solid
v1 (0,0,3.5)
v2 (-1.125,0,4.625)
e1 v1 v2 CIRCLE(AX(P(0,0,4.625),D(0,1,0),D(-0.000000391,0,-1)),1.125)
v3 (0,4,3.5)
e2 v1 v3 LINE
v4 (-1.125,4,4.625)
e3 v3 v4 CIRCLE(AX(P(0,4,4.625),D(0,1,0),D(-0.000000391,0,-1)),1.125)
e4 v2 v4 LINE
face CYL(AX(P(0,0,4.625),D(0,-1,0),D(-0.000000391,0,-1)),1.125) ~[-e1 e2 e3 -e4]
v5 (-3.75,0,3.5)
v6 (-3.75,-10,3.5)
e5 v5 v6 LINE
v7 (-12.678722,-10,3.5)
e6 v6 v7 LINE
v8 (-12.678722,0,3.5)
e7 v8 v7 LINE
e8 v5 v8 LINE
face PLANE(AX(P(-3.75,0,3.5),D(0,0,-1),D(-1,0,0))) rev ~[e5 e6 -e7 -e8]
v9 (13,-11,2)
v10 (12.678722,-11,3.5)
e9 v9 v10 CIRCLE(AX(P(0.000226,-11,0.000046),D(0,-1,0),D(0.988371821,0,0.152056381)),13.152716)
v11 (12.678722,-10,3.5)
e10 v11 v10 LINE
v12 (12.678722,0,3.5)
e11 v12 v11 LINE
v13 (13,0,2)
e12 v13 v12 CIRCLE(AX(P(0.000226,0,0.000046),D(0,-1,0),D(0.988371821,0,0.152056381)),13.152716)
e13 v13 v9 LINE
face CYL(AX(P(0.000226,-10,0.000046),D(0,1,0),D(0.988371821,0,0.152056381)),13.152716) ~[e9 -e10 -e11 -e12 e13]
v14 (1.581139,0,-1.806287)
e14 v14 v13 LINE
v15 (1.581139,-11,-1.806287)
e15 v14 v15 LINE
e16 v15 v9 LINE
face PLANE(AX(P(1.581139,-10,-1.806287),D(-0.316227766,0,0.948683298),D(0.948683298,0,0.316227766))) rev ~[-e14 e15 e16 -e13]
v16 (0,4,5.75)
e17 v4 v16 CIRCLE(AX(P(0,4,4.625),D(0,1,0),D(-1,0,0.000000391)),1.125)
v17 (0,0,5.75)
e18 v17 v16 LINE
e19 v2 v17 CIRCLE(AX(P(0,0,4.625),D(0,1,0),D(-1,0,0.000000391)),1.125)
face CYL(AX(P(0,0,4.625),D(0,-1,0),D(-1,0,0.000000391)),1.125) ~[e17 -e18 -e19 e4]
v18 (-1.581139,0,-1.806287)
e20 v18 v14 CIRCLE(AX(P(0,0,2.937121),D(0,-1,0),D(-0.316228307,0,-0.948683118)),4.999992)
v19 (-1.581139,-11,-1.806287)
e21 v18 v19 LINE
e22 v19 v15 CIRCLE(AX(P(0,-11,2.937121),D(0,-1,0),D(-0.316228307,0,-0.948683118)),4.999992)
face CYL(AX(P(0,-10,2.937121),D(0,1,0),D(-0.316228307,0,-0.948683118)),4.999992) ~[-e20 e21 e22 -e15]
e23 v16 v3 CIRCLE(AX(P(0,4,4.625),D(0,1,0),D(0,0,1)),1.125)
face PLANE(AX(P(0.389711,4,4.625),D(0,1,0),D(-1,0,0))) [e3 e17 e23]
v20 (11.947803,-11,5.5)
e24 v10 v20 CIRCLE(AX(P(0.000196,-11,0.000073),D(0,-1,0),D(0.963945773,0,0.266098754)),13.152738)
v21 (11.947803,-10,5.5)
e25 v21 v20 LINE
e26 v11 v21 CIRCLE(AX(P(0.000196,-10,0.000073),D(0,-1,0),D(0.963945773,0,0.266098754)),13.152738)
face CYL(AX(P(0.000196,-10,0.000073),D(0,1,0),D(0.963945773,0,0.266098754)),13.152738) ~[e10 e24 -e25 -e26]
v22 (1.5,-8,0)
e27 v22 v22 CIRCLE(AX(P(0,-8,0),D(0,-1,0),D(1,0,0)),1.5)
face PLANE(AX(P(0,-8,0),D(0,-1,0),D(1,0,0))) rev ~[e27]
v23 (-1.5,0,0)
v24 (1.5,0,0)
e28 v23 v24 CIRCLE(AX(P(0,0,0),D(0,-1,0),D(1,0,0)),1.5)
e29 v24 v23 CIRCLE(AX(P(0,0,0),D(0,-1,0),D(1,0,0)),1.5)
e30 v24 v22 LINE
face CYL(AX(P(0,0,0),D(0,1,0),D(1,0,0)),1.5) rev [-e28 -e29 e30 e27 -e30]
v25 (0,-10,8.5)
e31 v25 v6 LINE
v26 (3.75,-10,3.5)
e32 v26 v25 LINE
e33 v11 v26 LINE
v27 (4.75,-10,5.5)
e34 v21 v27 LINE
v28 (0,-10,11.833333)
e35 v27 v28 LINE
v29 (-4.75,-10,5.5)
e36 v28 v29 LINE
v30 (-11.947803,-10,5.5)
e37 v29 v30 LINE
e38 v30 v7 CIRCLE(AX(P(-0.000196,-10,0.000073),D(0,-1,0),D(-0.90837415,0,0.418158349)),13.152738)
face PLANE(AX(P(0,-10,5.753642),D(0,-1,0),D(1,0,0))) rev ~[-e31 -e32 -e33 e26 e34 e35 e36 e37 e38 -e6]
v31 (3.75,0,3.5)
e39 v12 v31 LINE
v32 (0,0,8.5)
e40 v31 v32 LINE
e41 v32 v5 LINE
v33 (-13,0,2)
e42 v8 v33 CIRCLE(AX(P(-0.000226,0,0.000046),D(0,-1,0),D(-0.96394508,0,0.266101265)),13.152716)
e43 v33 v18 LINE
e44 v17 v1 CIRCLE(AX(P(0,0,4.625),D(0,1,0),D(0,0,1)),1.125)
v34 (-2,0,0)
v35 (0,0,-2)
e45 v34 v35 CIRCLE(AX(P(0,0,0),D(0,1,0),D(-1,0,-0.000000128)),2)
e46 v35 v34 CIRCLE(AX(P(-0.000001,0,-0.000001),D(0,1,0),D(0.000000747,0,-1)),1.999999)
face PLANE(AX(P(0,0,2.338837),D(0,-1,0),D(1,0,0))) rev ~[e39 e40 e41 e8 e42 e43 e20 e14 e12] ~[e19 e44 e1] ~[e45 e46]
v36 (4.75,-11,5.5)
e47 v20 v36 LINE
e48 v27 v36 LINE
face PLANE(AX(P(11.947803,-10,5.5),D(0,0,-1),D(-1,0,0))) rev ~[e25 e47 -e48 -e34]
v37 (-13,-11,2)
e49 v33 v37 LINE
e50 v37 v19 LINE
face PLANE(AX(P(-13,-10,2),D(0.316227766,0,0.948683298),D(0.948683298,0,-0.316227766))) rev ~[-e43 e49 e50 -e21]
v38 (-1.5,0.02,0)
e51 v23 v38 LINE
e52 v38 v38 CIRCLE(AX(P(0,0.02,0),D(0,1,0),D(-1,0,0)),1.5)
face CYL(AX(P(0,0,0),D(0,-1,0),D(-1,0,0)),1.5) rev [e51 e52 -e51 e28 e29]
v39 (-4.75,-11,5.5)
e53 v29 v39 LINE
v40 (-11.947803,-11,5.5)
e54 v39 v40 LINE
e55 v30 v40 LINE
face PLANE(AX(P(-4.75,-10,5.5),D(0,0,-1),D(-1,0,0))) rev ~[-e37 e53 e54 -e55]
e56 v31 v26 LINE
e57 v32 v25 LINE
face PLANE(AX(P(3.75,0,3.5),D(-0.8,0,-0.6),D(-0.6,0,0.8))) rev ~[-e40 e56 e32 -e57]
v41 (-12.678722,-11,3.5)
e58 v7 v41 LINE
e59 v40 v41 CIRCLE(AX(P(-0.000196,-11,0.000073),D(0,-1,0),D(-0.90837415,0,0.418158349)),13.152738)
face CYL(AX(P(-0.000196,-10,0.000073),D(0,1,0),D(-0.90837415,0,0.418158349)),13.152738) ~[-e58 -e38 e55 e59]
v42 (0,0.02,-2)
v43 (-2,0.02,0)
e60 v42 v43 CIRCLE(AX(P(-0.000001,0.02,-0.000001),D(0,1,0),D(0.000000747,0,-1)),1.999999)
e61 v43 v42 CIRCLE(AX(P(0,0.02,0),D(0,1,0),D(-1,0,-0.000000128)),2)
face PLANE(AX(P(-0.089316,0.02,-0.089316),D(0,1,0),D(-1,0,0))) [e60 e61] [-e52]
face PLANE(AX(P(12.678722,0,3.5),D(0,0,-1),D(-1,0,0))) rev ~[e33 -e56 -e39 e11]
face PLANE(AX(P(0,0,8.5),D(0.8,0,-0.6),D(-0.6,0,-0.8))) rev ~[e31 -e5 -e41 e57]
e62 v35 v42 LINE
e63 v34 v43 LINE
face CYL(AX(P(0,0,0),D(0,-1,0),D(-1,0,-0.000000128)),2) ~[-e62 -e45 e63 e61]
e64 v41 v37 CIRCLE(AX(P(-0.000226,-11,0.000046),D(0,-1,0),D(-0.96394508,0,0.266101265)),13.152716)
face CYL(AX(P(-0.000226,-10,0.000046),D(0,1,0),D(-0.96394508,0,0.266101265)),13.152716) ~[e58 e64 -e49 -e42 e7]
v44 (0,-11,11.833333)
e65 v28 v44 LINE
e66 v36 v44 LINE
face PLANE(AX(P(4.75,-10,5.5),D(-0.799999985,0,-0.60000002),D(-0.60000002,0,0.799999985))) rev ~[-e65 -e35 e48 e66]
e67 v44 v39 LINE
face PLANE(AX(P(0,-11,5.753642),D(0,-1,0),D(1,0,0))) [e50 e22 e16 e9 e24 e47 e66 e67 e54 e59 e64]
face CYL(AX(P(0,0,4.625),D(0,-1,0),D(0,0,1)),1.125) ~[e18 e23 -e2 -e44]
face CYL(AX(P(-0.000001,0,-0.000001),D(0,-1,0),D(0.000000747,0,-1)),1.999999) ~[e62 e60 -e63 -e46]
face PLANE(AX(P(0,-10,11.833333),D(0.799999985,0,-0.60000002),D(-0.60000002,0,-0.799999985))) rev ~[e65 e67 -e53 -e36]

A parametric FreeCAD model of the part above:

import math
import FreeCAD as App
import Part
import Sketcher
Q = App.Units.Quantity

doc = App.newDocument("Part")
body = doc.addObject("PartDesign::Body", "Body")

# Sketch on XZ plane
sketch1 = doc.addObject("Sketcher::SketchObject", "Sketch")
body.addObject(sketch1)
sketch1.AttachmentSupport = (doc.XZ_Plane, [""])
sketch1.MapMode = "FlatFace"
sketch1.addGeometry([
    Part.LineSegment(App.Vector(-3.75, 3.5, 0), App.Vector(-12.678722, 3.5, 0)),  # 0
    Part.ArcOfCircle(Part.Circle(App.Vector(-0.000226, 0.000046, 0), App.Vector(0, 0, 1), 13.152716), math.radians(164.5676), math.radians(171.253884)),  # 1
    Part.LineSegment(App.Vector(-13, 2, 0), App.Vector(-1.581139, -1.806287, 0)),  # 2
    Part.ArcOfCircle(Part.Circle(App.Vector(0, 2.937121, 0), App.Vector(0, 0, 1), 4.999992), math.radians(-108.434981), math.radians(-71.565019)),  # 3
    Part.LineSegment(App.Vector(1.581139, -1.806287, 0), App.Vector(13, 2, 0)),  # 4
    Part.ArcOfCircle(Part.Circle(App.Vector(0.000226, 0.000046, 0), App.Vector(0, 0, 1), 13.152716), math.radians(8.746116), math.radians(15.4324)),  # 5
    Part.LineSegment(App.Vector(12.678722, 3.5, 0), App.Vector(3.75, 3.5, 0)),  # 6
    Part.LineSegment(App.Vector(3.75, 3.5, 0), App.Vector(0, 8.5, 0)),  # 7
    Part.LineSegment(App.Vector(0, 8.5, 0), App.Vector(-3.75, 3.5, 0)),  # 8
    Part.Circle(App.Vector(0, 0, 0), App.Vector(0, 0, 1), 1.5),  # 9
], False)
sketch1.addConstraint([
    Sketcher.Constraint("Coincident", 0, 2, 1, 1),
    Sketcher.Constraint("Coincident", 1, 2, 2, 1),
    Sketcher.Constraint("Tangent", 2, 2, 3, 1),
    Sketcher.Constraint("Tangent", 3, 2, 4, 1),
    Sketcher.Constraint("Coincident", 4, 2, 5, 1),
    Sketcher.Constraint("Coincident", 5, 2, 6, 1),
    Sketcher.Constraint("Coincident", 6, 2, 7, 1),
    Sketcher.Constraint("Coincident", 7, 2, 8, 1),
    Sketcher.Constraint("Coincident", 8, 2, 0, 1),
    Sketcher.Constraint("Horizontal", 0),
    Sketcher.Constraint("Horizontal", 6),
    Sketcher.Constraint("Coincident", 9, 3, -1, 1),
    Sketcher.Constraint("Equal", 1, 5),
    Sketcher.Constraint("Symmetric", 1, 3, 5, 3, -2),
    Sketcher.Constraint("Symmetric", 2, 2, 3, 2, -2),
    Sketcher.Constraint("Symmetric", 6, 2, 8, 2, -2),
    Sketcher.Constraint("PointOnObject", 7, 2, -2),
    Sketcher.Constraint("Diameter", 9, Q("3 mm")),
    Sketcher.Constraint("DistanceX", 1, 2, -1, 1, Q("13 mm")),
    Sketcher.Constraint("DistanceY", -1, 1, 1, 2, Q("2 mm")),
    Sketcher.Constraint("DistanceY", 6, 2, 7, 2, Q("5 mm")),
    Sketcher.Constraint("DistanceY", -1, 1, 0, 2, Q("3.5 mm")),
    Sketcher.Constraint("Distance", 7, Q("6.25 mm")),
    Sketcher.Constraint("Radius", 3, Q("4.999992 mm")),
    Sketcher.Constraint("Radius", 1, Q("13.152716 mm")),
    Sketcher.Constraint("DistanceX", 0, 2, 0, 1, Q("8.928722 mm")),
    Sketcher.Constraint("DistanceY", -1, 1, 3, 3, Q("2.937121 mm")),
])
pad1 = doc.addObject("PartDesign::Pad", "Pad")
body.addObject(pad1)
pad1.Profile = sketch1
pad1.Length = 10

# Sketch on XZ plane
sketch2 = doc.addObject("Sketcher::SketchObject", "Sketch001")
body.addObject(sketch2)
sketch2.AttachmentSupport = (doc.XZ_Plane, [""])
sketch2.MapMode = "FlatFace"
sketch2.addGeometry([
    Part.ArcOfCircle(Part.Circle(App.Vector(0, 4.6, 0), App.Vector(0, 0, 1), 1.1), math.radians(-90), math.radians(90)),
    Part.ArcOfCircle(Part.Circle(App.Vector(0, 4.6, 0), App.Vector(0, 0, 1), 1.1), math.radians(-180), math.radians(-90)),
    Part.ArcOfCircle(Part.Circle(App.Vector(0, 4.6, 0), App.Vector(0, 0, 1), 1.1), math.radians(90), math.radians(180)),
], False)
sketch2.addConstraint([
    Sketcher.Constraint("Tangent", 0, 1, 1, 2),
    Sketcher.Constraint("Tangent", 1, 1, 2, 2),
    Sketcher.Constraint("Tangent", 2, 1, 0, 2),
    Sketcher.Constraint("PointOnObject", 0, 3, -2),
    Sketcher.Constraint("PointOnObject", 0, 1, -2),
    Sketcher.Constraint("PointOnObject", 2, 1, -2),
    Sketcher.Constraint("Horizontal", 2, 3, 1, 1),
    Sketcher.Constraint("Radius", 0, Q("1.125 mm")),
    Sketcher.Constraint("DistanceY", -1, 1, 0, 1, Q("3.5 mm")),
])
pad2 = doc.addObject("PartDesign::Pad", "Pad001")
body.addObject(pad2)
pad2.Profile = sketch2
pad2.Length = 4
pad2.Reversed = True

# Sketch on XZ plane
sketch3 = doc.addObject("Sketcher::SketchObject", "Sketch002")
body.addObject(sketch3)
sketch3.AttachmentSupport = (doc.XZ_Plane, [""])
sketch3.MapMode = "FlatFace"
sketch3.AttachmentOffset = App.Placement(App.Vector(0, 0, 10), App.Rotation())
sketch3.addGeometry(Part.Circle(App.Vector(0, 0, 0), App.Vector(0, 0, 1), 1.5), False)
sketch3.addConstraint([
    Sketcher.Constraint("Coincident", 0, 3, -1, 1),
    Sketcher.Constraint("Diameter", 0, Q("3 mm")),
])
pad3 = doc.addObject("PartDesign::Pad", "Pad002")
body.addObject(pad3)
pad3.Profile = sketch3
pad3.Length = 2
pad3.Reversed = True

# Sketch on XZ plane
sketch4 = doc.addObject("Sketcher::SketchObject", "Sketch003")
body.addObject(sketch4)
sketch4.AttachmentSupport = (doc.XZ_Plane, [""])
sketch4.MapMode = "FlatFace"
sketch4.addGeometry([
    Part.ArcOfCircle(Part.Circle(App.Vector(0, 0, 0), App.Vector(0, 0, 1), 2), math.radians(180), math.radians(270)),
    Part.ArcOfCircle(Part.Circle(App.Vector(0, 0, 0), App.Vector(0, 0, 1), 2), math.radians(-90), math.radians(180)),
    Part.Circle(App.Vector(0, 0, 0), App.Vector(0, 0, 1), 1.5),
], False)
sketch4.addConstraint([
    Sketcher.Constraint("Tangent", 0, 1, 1, 2),
    Sketcher.Constraint("Coincident", 1, 1, 0, 2),
    Sketcher.Constraint("Coincident", 0, 3, -1, 1),
    Sketcher.Constraint("Coincident", 2, 3, -1, 1),
    Sketcher.Constraint("PointOnObject", 0, 1, -1),
    Sketcher.Constraint("PointOnObject", 1, 1, -2),
    Sketcher.Constraint("Diameter", 2, Q("3 mm")),
    Sketcher.Constraint("Radius", 0, Q("1.999999 mm")),
])
pad4 = doc.addObject("PartDesign::Pad", "Pad003")
body.addObject(pad4)
pad4.Profile = sketch4
pad4.Length = 0.02
pad4.Reversed = True

# Sketch on XZ plane
sketch5 = doc.addObject("Sketcher::SketchObject", "Sketch004")
body.addObject(sketch5)
sketch5.AttachmentSupport = (doc.XZ_Plane, [""])
sketch5.MapMode = "FlatFace"
sketch5.AttachmentOffset = App.Placement(App.Vector(0, 0, 10), App.Rotation())
sketch5.addGeometry([
    Part.LineSegment(App.Vector(0, 11.833333, 0), App.Vector(-4.75, 5.5, 0)),  # 0
    Part.LineSegment(App.Vector(-4.75, 5.5, 0), App.Vector(-11.947803, 5.5, 0)),  # 1
    Part.ArcOfCircle(Part.Circle(App.Vector(-0.000196, 0.000073, 0), App.Vector(0, 0, 1), 13.152738), math.radians(155.281629), math.radians(164.567749)),  # 2
    Part.ArcOfCircle(Part.Circle(App.Vector(-0.000226, 0.000046, 0), App.Vector(0, 0, 1), 13.152716), math.radians(164.5676), math.radians(171.253884)),  # 3
    Part.LineSegment(App.Vector(-13, 2, 0), App.Vector(-1.581139, -1.806287, 0)),  # 4
    Part.ArcOfCircle(Part.Circle(App.Vector(0, 2.937121, 0), App.Vector(0, 0, 1), 4.999992), math.radians(-108.434981), math.radians(-71.565019)),  # 5
    Part.LineSegment(App.Vector(1.581139, -1.806287, 0), App.Vector(13, 2, 0)),  # 6
    Part.ArcOfCircle(Part.Circle(App.Vector(0.000226, 0.000046, 0), App.Vector(0, 0, 1), 13.152716), math.radians(8.746116), math.radians(15.4324)),  # 7
    Part.ArcOfCircle(Part.Circle(App.Vector(0.000196, 0.000073, 0), App.Vector(0, 0, 1), 13.152738), math.radians(15.432251), math.radians(24.718371)),  # 8
    Part.LineSegment(App.Vector(11.947803, 5.5, 0), App.Vector(4.75, 5.5, 0)),  # 9
    Part.LineSegment(App.Vector(4.75, 5.5, 0), App.Vector(0, 11.833333, 0)),  # 10
], False)
sketch5.addConstraint([
    Sketcher.Constraint("Coincident", 0, 2, 1, 1),
    Sketcher.Constraint("Coincident", 1, 2, 2, 1),
    Sketcher.Constraint("Coincident", 2, 2, 3, 1),
    Sketcher.Constraint("Coincident", 3, 2, 4, 1),
    Sketcher.Constraint("Tangent", 4, 2, 5, 1),
    Sketcher.Constraint("Tangent", 5, 2, 6, 1),
    Sketcher.Constraint("Coincident", 6, 2, 7, 1),
    Sketcher.Constraint("Coincident", 7, 2, 8, 1),
    Sketcher.Constraint("Coincident", 8, 2, 9, 1),
    Sketcher.Constraint("Coincident", 9, 2, 10, 1),
    Sketcher.Constraint("Coincident", 10, 2, 0, 1),
    Sketcher.Constraint("Horizontal", 1),
    Sketcher.Constraint("Horizontal", 9),
    Sketcher.Constraint("Equal", 3, 7),
    Sketcher.Constraint("Equal", 2, 8),
    Sketcher.Constraint("Symmetric", 3, 3, 7, 3, -2),
    Sketcher.Constraint("Symmetric", 4, 2, 5, 2, -2),
    Sketcher.Constraint("Symmetric", 1, 2, 8, 2, -2),
    Sketcher.Constraint("PointOnObject", 10, 2, -2),
    Sketcher.Constraint("Horizontal", 2, 2, 7, 2),
    Sketcher.Constraint("Equal", 1, 9),
    Sketcher.Constraint("DistanceX", 3, 2, -1, 1, Q("13 mm")),
    Sketcher.Constraint("DistanceY", -1, 1, 3, 2, Q("2 mm")),
    Sketcher.Constraint("DistanceY", 2, 2, 1, 2, Q("2 mm")),
    Sketcher.Constraint("DistanceY", -1, 1, 0, 2, Q("5.5 mm")),
    Sketcher.Constraint("DistanceX", 0, 2, -1, 1, Q("4.75 mm")),
    Sketcher.Constraint("Radius", 5, Q("4.999992 mm")),
    Sketcher.Constraint("Radius", 2, Q("13.152738 mm")),
    Sketcher.Constraint("Radius", 3, Q("13.152716 mm")),
    Sketcher.Constraint("DistanceX", 1, 2, 8, 3, Q("11.947999 mm")),
    Sketcher.Constraint("DistanceX", 1, 2, 1, 1, Q("7.197803 mm")),
    Sketcher.Constraint("DistanceY", -1, 1, 5, 3, Q("2.937121 mm")),
    Sketcher.Constraint("DistanceY", 2, 3, 10, 2, Q("11.83326 mm")),
])
pad5 = doc.addObject("PartDesign::Pad", "Pad004")
body.addObject(pad5)
pad5.Profile = sketch5
pad5.Length = 1

doc.recompute()
